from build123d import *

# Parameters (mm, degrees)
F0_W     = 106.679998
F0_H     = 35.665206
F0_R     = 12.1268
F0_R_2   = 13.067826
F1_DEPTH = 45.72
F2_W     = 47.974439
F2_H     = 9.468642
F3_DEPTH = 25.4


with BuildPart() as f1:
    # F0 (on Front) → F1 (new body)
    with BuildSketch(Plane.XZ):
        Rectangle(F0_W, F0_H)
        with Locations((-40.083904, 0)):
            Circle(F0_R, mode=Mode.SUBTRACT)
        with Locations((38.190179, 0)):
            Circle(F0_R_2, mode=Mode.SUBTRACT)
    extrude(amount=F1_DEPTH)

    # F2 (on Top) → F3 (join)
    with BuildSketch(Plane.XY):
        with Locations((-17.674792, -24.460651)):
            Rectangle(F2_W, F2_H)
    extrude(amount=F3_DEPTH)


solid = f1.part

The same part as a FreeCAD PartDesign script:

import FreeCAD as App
import Part
import Sketcher
Q = App.Units.Quantity

doc = App.newDocument("Part")
body = doc.addObject("PartDesign::Body", "Body")

# Sketch on XZ plane
sketch1 = body.newObject("Sketcher::SketchObject", "Sketch")
sketch1.AttachmentSupport = (doc.getObject("XZ_Plane"), [""])
sketch1.MapMode = "FlatFace"
sketch1.addGeometry([
    Part.LineSegment(App.Vector(-53.339999, 17.832603, 0), App.Vector(-53.339999, -17.832603, 0)),  # 0
    Part.LineSegment(App.Vector(-53.339999, -17.832603, 0), App.Vector(53.339999, -17.832603, 0)),  # 1
    Part.LineSegment(App.Vector(53.339999, -17.832603, 0), App.Vector(53.339999, 17.832603, 0)),  # 2
    Part.LineSegment(App.Vector(53.339999, 17.832603, 0), App.Vector(-53.339999, 17.832603, 0)),  # 3
    Part.Circle(App.Vector(-40.083904, 0, 0), App.Vector(0, 0, 1), 12.1268),  # 4
    Part.Circle(App.Vector(38.190179, 0, 0), App.Vector(0, 0, 1), 13.067826),  # 5
], False)
sketch1.addConstraint([
    Sketcher.Constraint("Coincident", 0, 2, 1, 1),
    Sketcher.Constraint("Coincident", 1, 2, 2, 1),
    Sketcher.Constraint("Coincident", 2, 2, 3, 1),
    Sketcher.Constraint("Coincident", 3, 2, 0, 1),
    Sketcher.Constraint("Vertical", 0),
    Sketcher.Constraint("Horizontal", 1),
    Sketcher.Constraint("Vertical", 2),
    Sketcher.Constraint("Horizontal", 3),
    Sketcher.Constraint("Symmetric", 0, 2, 2, 2, -1, 1),
    Sketcher.Constraint("PointOnObject", 4, 3, -1),
    Sketcher.Constraint("PointOnObject", 5, 3, -1),
    Sketcher.Constraint("DistanceX", 1, 1, 1, 2, Q("4.1999999 in")),
    Sketcher.Constraint("Diameter", 4, 24.2536),
    Sketcher.Constraint("Diameter", 5, 26.135652),
    Sketcher.Constraint("DistanceY", 0, 2, 0, 1, 35.665206),
    Sketcher.Constraint("DistanceX", -1, 1, 5, 3, 38.190179),
    Sketcher.Constraint("DistanceX", 4, 3, -1, 1, 40.083904),
])
pad1 = body.newObject("PartDesign::Pad", "Pad")
pad1.Profile = sketch1
pad1.Length = Q("1.8 in")

# Sketch on XY plane
sketch2 = body.newObject("Sketcher::SketchObject", "Sketch001")
sketch2.AttachmentSupport = (doc.getObject("XY_Plane"), [""])
sketch2.MapMode = "FlatFace"
sketch2.addGeometry([
    Part.LineSegment(App.Vector(-41.662011, -19.72633, 0), App.Vector(-41.662011, -29.194972, 0)),
    Part.LineSegment(App.Vector(-41.662011, -29.194972, 0), App.Vector(6.312428, -29.194972, 0)),
    Part.LineSegment(App.Vector(6.312428, -29.194972, 0), App.Vector(6.312428, -19.72633, 0)),
    Part.LineSegment(App.Vector(6.312428, -19.72633, 0), App.Vector(-41.662011, -19.72633, 0)),
], False)
sketch2.addConstraint([
    Sketcher.Constraint("Coincident", 0, 2, 1, 1),
    Sketcher.Constraint("Coincident", 1, 2, 2, 1),
    Sketcher.Constraint("Coincident", 2, 2, 3, 1),
    Sketcher.Constraint("Coincident", 3, 2, 0, 1),
    Sketcher.Constraint("Vertical", 0),
    Sketcher.Constraint("Horizontal", 1),
    Sketcher.Constraint("Vertical", 2),
    Sketcher.Constraint("Horizontal", 3),
    Sketcher.Constraint("DistanceX", 1, 1, 1, 2, 47.974439),
    Sketcher.Constraint("DistanceY", 0, 2, 0, 1, 9.468642),
    Sketcher.Constraint("DistanceX", 0, 2, -1, 1, 41.662011),
    Sketcher.Constraint("DistanceY", 0, 2, -1, 1, 29.194972),
])
pad2 = body.newObject("PartDesign::Pad", "Pad001")
pad2.Profile = sketch2
pad2.Length = Q("1 in")

doc.recompute()
